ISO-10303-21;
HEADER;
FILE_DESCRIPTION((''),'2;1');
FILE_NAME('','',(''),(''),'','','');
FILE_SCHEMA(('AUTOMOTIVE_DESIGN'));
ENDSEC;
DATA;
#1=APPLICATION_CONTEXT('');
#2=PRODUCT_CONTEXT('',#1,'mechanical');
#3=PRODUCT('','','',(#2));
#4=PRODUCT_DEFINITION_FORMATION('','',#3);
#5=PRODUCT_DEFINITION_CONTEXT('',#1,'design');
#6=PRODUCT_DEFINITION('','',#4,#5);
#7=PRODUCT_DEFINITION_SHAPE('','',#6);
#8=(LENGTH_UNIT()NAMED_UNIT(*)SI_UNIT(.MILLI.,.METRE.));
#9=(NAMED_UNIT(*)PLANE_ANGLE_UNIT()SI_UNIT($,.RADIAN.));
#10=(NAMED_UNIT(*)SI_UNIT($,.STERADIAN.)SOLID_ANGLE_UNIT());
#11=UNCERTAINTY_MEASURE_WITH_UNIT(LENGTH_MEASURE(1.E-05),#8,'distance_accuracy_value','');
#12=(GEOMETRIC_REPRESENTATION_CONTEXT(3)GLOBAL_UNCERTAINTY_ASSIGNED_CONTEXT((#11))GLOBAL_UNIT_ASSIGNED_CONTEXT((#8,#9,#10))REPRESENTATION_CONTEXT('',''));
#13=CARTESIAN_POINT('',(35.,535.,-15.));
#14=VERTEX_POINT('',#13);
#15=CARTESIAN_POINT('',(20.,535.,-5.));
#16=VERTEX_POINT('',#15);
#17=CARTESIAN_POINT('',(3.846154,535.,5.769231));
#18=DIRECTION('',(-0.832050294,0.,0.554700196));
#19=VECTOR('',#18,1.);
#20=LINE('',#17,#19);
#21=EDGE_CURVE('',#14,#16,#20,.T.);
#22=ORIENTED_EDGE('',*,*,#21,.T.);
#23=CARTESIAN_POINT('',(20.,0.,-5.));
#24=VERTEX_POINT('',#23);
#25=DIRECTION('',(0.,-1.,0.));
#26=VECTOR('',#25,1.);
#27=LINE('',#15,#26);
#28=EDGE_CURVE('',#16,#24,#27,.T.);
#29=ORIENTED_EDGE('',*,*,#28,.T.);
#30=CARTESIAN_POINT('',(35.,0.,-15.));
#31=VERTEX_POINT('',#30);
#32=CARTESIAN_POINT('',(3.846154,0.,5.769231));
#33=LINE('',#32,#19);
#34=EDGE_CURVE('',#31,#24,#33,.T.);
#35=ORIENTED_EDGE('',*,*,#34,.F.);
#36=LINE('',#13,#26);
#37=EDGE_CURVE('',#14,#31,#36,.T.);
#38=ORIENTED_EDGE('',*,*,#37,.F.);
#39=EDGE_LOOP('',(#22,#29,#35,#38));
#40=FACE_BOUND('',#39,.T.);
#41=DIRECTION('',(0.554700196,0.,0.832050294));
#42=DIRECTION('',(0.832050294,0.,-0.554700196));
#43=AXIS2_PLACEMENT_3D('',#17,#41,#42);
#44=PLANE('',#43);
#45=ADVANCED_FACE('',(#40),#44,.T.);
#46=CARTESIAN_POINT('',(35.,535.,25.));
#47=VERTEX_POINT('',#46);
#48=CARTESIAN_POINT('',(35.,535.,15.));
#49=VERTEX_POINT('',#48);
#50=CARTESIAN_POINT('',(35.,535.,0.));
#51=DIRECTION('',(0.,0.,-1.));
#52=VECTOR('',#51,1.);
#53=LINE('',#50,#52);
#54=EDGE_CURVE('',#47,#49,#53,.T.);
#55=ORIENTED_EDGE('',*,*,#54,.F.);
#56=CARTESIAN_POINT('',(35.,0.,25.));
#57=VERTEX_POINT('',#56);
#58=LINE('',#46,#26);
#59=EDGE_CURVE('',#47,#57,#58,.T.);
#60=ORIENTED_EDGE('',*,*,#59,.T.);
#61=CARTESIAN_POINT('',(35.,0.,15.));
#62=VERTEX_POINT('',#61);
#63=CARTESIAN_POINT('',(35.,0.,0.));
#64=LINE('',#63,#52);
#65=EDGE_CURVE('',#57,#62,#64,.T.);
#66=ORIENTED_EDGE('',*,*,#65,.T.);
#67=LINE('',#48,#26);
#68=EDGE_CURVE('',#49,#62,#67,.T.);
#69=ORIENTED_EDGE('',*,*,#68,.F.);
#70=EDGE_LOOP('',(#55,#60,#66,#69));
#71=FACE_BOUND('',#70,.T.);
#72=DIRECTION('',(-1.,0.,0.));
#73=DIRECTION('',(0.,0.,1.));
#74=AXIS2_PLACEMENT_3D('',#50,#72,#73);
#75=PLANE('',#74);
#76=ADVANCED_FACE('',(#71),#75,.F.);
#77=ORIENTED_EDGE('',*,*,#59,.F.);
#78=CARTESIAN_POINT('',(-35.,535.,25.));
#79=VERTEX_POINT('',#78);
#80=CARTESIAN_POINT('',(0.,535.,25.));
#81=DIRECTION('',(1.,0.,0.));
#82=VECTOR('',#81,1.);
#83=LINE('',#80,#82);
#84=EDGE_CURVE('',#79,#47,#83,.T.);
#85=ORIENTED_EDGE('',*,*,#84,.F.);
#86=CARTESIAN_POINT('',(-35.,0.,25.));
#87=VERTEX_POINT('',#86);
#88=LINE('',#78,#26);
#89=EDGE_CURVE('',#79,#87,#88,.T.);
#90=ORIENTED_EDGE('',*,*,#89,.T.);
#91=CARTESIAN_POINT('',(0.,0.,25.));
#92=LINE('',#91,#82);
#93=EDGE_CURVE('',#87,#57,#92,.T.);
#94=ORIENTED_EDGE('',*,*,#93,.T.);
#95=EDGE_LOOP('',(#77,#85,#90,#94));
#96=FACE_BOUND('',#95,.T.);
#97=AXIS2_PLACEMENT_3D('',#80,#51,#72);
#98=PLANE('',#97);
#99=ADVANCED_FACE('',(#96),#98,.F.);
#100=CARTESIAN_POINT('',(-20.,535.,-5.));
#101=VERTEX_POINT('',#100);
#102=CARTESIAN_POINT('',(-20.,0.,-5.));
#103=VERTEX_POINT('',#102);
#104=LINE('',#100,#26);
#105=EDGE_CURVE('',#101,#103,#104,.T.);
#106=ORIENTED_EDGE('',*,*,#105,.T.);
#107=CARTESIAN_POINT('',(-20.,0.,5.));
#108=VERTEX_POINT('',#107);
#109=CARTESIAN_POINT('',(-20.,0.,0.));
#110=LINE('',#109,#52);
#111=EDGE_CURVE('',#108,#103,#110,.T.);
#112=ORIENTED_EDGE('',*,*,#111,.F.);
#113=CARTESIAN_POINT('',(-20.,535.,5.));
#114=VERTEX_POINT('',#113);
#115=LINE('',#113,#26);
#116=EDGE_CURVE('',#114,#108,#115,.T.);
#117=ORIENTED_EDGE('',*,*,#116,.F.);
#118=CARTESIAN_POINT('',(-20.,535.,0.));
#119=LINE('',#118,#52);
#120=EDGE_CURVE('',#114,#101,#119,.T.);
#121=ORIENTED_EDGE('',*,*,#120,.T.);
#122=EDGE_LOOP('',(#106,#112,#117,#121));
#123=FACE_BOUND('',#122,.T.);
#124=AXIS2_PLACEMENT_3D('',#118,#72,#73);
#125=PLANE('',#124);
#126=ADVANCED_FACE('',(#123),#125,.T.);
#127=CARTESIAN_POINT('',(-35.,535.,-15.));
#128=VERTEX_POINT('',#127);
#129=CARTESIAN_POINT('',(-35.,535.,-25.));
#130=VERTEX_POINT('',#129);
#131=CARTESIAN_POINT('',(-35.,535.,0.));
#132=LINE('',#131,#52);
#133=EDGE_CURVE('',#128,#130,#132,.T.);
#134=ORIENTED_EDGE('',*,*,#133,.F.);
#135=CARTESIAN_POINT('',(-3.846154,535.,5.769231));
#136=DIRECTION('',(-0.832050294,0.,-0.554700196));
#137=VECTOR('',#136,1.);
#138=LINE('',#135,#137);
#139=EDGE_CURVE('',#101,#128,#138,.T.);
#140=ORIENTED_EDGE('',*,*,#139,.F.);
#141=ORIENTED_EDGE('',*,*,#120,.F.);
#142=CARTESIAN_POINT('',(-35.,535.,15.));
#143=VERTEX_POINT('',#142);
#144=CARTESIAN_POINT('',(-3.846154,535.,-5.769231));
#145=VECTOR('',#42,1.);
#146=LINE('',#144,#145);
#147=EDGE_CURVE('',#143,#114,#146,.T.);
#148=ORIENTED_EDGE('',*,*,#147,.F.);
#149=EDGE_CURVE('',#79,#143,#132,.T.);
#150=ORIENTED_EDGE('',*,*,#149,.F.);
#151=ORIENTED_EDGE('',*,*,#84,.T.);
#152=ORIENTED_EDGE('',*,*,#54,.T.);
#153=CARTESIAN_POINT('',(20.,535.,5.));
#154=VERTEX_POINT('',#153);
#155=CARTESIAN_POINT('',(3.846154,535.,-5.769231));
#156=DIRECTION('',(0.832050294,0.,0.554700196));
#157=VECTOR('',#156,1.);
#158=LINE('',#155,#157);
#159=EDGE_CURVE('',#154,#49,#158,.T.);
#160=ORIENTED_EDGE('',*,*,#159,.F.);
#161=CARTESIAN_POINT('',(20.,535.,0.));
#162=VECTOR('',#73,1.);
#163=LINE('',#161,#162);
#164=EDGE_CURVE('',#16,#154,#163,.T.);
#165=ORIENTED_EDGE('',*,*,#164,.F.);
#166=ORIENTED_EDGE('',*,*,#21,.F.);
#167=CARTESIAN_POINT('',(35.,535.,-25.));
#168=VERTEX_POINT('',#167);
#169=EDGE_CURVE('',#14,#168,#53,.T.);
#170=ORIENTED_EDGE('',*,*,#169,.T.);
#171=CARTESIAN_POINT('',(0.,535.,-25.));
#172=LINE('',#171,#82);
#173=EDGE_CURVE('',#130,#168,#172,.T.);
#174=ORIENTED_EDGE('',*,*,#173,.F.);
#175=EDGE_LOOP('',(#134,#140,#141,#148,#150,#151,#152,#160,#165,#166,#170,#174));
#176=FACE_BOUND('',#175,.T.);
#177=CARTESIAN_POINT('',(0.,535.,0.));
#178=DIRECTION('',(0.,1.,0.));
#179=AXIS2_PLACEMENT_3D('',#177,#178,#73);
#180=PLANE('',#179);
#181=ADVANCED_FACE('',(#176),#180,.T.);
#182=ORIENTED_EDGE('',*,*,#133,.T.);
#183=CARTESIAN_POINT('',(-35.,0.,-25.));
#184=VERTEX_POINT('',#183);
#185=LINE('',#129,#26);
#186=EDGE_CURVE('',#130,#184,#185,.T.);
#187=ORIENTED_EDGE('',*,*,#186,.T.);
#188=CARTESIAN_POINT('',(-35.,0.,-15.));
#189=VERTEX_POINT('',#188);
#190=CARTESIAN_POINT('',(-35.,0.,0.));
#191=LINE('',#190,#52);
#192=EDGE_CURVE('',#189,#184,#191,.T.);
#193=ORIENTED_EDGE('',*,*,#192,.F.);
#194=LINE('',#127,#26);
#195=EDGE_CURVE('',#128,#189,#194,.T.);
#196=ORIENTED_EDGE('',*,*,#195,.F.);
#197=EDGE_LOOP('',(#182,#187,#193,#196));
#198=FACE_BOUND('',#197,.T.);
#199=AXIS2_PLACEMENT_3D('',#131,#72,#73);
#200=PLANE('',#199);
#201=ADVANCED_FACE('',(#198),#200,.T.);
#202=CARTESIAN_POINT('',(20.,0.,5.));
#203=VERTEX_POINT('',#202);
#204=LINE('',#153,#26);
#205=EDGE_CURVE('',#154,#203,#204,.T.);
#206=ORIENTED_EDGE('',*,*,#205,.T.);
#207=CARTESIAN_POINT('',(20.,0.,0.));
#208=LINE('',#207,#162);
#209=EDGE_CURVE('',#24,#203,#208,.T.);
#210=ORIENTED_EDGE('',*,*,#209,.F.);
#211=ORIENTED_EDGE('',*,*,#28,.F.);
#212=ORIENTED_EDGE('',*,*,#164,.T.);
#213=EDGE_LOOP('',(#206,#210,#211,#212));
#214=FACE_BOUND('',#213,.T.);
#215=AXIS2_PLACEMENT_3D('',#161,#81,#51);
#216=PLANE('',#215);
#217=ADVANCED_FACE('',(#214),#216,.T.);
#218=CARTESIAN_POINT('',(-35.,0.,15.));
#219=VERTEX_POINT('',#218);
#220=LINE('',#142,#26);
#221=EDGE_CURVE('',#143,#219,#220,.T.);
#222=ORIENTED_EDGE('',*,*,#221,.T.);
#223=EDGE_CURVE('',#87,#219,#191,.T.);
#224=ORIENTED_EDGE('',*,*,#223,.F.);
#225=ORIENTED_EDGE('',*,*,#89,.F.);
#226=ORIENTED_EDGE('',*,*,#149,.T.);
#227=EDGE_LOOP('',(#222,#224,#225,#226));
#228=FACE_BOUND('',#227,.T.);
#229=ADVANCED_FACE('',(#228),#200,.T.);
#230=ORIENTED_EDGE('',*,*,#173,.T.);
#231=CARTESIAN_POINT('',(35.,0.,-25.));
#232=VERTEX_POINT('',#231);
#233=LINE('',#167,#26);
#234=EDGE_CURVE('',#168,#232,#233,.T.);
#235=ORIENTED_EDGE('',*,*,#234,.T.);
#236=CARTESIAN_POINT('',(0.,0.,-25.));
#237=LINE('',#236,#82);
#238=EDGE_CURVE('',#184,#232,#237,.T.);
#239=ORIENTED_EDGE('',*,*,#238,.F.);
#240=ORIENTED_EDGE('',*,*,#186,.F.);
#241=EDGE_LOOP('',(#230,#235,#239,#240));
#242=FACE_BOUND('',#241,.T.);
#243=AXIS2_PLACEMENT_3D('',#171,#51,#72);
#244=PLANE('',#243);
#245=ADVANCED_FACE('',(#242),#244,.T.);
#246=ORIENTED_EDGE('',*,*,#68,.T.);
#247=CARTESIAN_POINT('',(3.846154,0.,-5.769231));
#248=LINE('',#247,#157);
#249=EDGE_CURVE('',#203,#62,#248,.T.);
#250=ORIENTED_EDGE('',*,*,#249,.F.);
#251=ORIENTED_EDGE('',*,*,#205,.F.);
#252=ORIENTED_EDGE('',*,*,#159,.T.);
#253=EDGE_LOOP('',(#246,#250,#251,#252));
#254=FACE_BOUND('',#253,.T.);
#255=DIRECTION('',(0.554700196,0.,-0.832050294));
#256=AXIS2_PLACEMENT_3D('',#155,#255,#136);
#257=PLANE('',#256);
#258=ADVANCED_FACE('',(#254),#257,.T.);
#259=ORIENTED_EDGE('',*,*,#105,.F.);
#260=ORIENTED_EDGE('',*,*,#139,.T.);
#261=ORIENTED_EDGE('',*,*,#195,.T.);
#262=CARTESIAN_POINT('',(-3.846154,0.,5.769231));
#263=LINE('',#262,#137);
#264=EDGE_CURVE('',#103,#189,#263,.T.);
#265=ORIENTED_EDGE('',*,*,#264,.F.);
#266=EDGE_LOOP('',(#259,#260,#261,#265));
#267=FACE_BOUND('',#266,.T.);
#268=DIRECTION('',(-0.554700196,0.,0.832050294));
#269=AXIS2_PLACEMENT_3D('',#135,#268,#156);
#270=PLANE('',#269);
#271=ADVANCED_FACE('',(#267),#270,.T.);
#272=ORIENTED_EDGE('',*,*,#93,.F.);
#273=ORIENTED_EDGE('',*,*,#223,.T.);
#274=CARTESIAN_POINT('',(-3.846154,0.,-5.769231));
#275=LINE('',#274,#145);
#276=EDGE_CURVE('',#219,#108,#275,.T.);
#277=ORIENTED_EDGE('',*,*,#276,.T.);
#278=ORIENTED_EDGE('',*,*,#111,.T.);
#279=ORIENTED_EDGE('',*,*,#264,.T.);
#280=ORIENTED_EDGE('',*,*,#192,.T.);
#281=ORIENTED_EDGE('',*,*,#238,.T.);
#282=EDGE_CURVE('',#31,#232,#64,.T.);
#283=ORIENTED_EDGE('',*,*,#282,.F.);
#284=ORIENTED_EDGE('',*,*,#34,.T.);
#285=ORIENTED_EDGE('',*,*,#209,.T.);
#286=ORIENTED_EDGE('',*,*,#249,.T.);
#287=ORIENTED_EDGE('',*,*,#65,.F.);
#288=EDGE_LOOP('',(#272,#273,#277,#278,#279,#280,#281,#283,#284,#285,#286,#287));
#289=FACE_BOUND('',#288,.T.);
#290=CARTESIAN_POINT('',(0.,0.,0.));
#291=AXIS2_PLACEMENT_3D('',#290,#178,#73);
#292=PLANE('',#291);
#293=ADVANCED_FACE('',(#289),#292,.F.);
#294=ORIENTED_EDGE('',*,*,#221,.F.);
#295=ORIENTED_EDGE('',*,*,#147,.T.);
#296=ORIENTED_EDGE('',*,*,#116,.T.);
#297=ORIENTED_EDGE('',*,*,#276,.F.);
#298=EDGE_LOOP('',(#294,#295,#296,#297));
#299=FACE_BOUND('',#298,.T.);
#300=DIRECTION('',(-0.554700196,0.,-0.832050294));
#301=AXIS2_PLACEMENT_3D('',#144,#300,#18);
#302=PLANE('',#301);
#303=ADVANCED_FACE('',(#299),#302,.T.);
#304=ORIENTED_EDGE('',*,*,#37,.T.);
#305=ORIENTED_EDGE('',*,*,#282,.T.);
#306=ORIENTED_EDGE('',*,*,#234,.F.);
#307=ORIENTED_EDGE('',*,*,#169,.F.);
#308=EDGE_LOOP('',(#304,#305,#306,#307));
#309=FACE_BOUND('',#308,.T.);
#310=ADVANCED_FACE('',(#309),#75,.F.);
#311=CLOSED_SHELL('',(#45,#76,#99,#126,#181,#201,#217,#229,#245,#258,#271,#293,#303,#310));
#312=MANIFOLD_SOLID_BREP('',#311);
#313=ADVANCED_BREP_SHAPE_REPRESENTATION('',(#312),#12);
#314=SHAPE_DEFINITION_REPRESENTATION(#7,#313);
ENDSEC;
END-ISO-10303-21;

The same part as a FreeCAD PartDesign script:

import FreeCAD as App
import Part
import Sketcher

V = App.Vector
Q = App.Units.Quantity

doc = App.newDocument("Part")
body = doc.addObject("PartDesign::Body", "Body")

# Sketch on XZ plane
sketch1 = doc.addObject("Sketcher::SketchObject", "Sketch")
body.addObject(sketch1)
sketch1.AttachmentSupport = (doc.XZ_Plane, [""])
sketch1.MapMode = "FlatFace"
sketch1.addGeometry(Part.LineSegment(V(-20, 5, 0), V(-35, 15, 0)), False)
sketch1.addGeometry(Part.LineSegment(V(-35, 15, 0), V(-35, 25, 0)), False)
sketch1.addGeometry(Part.LineSegment(V(-35, 25, 0), V(35, 25, 0)), False)
sketch1.addGeometry(Part.LineSegment(V(35, 25, 0), V(35, 15, 0)), False)
sketch1.addGeometry(Part.LineSegment(V(35, 15, 0), V(20, 5, 0)), False)
sketch1.addGeometry(Part.LineSegment(V(20, 5, 0), V(20, -5, 0)), False)
sketch1.addGeometry(Part.LineSegment(V(20, -5, 0), V(35, -15, 0)), False)
sketch1.addGeometry(Part.LineSegment(V(35, -15, 0), V(35, -25, 0)), False)
sketch1.addGeometry(Part.LineSegment(V(35, -25, 0), V(-35, -25, 0)), False)
sketch1.addGeometry(Part.LineSegment(V(-35, -25, 0), V(-35, -15, 0)), False)
sketch1.addGeometry(Part.LineSegment(V(-35, -15, 0), V(-20, -5, 0)), False)
sketch1.addGeometry(Part.LineSegment(V(-20, -5, 0), V(-20, 5, 0)), False)
sketch1.addConstraint(Sketcher.Constraint("Coincident", 0, 2, 1, 1))
sketch1.addConstraint(Sketcher.Constraint("Coincident", 1, 2, 2, 1))
sketch1.addConstraint(Sketcher.Constraint("Coincident", 2, 2, 3, 1))
sketch1.addConstraint(Sketcher.Constraint("Coincident", 3, 2, 4, 1))
sketch1.addConstraint(Sketcher.Constraint("Coincident", 4, 2, 5, 1))
sketch1.addConstraint(Sketcher.Constraint("Coincident", 5, 2, 6, 1))
sketch1.addConstraint(Sketcher.Constraint("Coincident", 6, 2, 7, 1))
sketch1.addConstraint(Sketcher.Constraint("Coincident", 7, 2, 8, 1))
sketch1.addConstraint(Sketcher.Constraint("Coincident", 8, 2, 9, 1))
sketch1.addConstraint(Sketcher.Constraint("Coincident", 9, 2, 10, 1))
sketch1.addConstraint(Sketcher.Constraint("Coincident", 10, 2, 11, 1))
sketch1.addConstraint(Sketcher.Constraint("Coincident", 11, 2, 0, 1))
sketch1.addConstraint(Sketcher.Constraint("Vertical", 1))
sketch1.addConstraint(Sketcher.Constraint("Horizontal", 2))
sketch1.addConstraint(Sketcher.Constraint("Vertical", 3))
sketch1.addConstraint(Sketcher.Constraint("Vertical", 5))
sketch1.addConstraint(Sketcher.Constraint("Vertical", 7))
sketch1.addConstraint(Sketcher.Constraint("Horizontal", 8))
sketch1.addConstraint(Sketcher.Constraint("Vertical", 9))
sketch1.addConstraint(Sketcher.Constraint("Vertical", 11))
sketch1.addConstraint(Sketcher.Constraint("Symmetric", 0, 2, 6, 2, -1, 1))
sketch1.addConstraint(Sketcher.Constraint("Symmetric", 2, 2, 8, 2, -1, 1))
sketch1.addConstraint(Sketcher.Constraint("Symmetric", 4, 2, 10, 2, -1, 1))
sketch1.addConstraint(Sketcher.Constraint("Symmetric", 0, 2, 3, 2, -2))
sketch1.addConstraint(Sketcher.Constraint("Parallel", 0, 6))
sketch1.addConstraint(Sketcher.Constraint("Parallel", 4, 10))
sketch1.addConstraint(Sketcher.Constraint("Horizontal", 5, 2, 10, 2))
sketch1.addConstraint(Sketcher.Constraint("Equal", 3, 5))
sketch1.addConstraint(Sketcher.Constraint("DistanceX", 2, 1, 2, 2, Q("70 mm")))
sketch1.addConstraint(Sketcher.Constraint("DistanceY", 1, 1, 1, 2, Q("10 mm")))
sketch1.addConstraint(Sketcher.Constraint("DistanceY", -1, 1, 0, 2, Q("15 mm")))
sketch1.addConstraint(Sketcher.Constraint("DistanceX", -1, 1, 4, 2, Q("20 mm")))
pad1 = doc.addObject("PartDesign::Pad", "Pad")
body.addObject(pad1)
pad1.Profile = sketch1
pad1.Length = 535
pad1.Reversed = True

doc.recompute()
